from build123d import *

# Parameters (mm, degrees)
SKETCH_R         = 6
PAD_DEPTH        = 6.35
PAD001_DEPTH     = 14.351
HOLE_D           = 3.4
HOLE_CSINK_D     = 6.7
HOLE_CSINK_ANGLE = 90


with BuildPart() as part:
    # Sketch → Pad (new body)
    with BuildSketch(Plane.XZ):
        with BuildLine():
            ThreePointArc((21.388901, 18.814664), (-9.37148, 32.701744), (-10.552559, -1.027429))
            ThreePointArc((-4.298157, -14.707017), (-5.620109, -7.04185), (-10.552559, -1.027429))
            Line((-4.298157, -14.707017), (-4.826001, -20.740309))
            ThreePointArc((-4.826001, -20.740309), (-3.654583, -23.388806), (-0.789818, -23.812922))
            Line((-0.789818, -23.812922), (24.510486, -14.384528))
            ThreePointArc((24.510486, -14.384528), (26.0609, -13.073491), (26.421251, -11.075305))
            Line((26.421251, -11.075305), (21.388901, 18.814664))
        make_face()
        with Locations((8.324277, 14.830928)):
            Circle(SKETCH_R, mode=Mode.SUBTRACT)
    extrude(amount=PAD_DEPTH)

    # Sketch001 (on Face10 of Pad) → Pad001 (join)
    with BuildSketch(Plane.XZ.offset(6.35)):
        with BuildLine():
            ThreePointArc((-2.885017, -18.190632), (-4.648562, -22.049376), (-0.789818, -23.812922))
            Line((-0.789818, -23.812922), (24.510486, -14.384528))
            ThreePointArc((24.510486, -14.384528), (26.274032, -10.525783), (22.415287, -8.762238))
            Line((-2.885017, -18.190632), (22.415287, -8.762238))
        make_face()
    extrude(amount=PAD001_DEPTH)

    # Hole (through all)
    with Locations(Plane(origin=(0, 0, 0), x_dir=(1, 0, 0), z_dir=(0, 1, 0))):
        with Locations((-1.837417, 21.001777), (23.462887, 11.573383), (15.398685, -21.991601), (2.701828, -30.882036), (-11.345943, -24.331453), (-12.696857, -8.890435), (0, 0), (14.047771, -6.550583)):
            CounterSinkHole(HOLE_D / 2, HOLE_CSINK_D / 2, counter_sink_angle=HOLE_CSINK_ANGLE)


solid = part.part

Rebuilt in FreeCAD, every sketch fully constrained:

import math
import FreeCAD as App
import Part
import Sketcher
from FreeCAD import Vector
Q = App.Units.Quantity

doc = App.newDocument("Part")
params = doc.addObject("Spreadsheet::Sheet", "Params")
for row, (alias, value) in enumerate([
    ("sketch1_diameter", "12 mm"),
    ("sketch1_radius", "3 mm"),
    ("sketch1_radius2", "20.32 mm"),
    ("sketch1_radius3", "15.239999 mm"),
    ("sketch1_length", "27 mm"),
    ("pad1_length", "6.35 mm"),
    ("sketch2_radius", "3 mm"),
    ("sketch2_length", "27 mm"),
    ("pad2_length", "14.351 mm"),
    ("sketch3_diameter", "3.4 mm"),
    ("hole_diameter", "3.4 mm"),
    ("hole_csink_diameter", "6.7 mm"),
], start=1):
    params.set(f"A{row}", alias)
    params.set(f"B{row}", "=" + value)
    params.setAlias(f"B{row}", alias)

body = doc.addObject("PartDesign::Body", "Body")

# Sketch on XZ plane
sketch1 = body.newObject("Sketcher::SketchObject", "Sketch")
sketch1.AttachmentSupport = (doc.getObject("XZ_Plane"), [""])
sketch1.MapMode = "FlatFace"
sketch1.addGeometry([
    Part.ArcOfCircle(Part.Circle(Vector(1.350914, 15.441018, 0), Vector(0, 0, 1), 20.32), math.radians(9.556836), math.radians(234.140414)),  # 0
    Part.ArcOfCircle(Part.Circle(Vector(-19.480163, -13.378763, 0), Vector(0, 0, 1), 15.239999), math.radians(-5.000001), math.radians(54.140414)),  # 1
    Part.LineSegment(Vector(-4.298157, -14.707017, 0), Vector(-4.826001, -20.740309, 0)),  # 2
    Part.ArcOfCircle(Part.Circle(Vector(-1.837417, -21.001777, 0), Vector(0, 0, 1), 3), math.radians(174.999986), math.radians(290.43837)),  # 3
    Part.LineSegment(Vector(-0.789818, -23.812922, 0), Vector(24.510486, -14.384528, 0)),  # 4
    Part.ArcOfCircle(Part.Circle(Vector(23.462884, -11.573382, 0), Vector(0, 0, 1), 3.000002), math.radians(-69.561592), math.radians(9.556808)),  # 5
    Part.LineSegment(Vector(26.421251, -11.075305, 0), Vector(21.388901, 18.814664, 0)),  # 6
    Part.Circle(Vector(8.324277, 14.830928, 0), Vector(0, 0, 1), 6),  # 7
], False)
sketch1.addConstraint([
    Sketcher.Constraint("Tangent", 0, 2, 1, 2),
    Sketcher.Constraint("Tangent", 1, 1, 2, 1),
    Sketcher.Constraint("Tangent", 2, 2, 3, 1),
    Sketcher.Constraint("Tangent", 3, 2, 4, 1),
    Sketcher.Constraint("Tangent", 4, 2, 5, 1),
    Sketcher.Constraint("Tangent", 5, 2, 6, 1),
    Sketcher.Constraint("Tangent", 6, 2, 0, 1),
    Sketcher.Constraint("Diameter", 7, 12.0),
    Sketcher.Constraint("Radius", 3, 3.0),
    Sketcher.Constraint("Angle", 2, Q("-94.999994 deg")),
    Sketcher.Constraint("Radius", 0, 20.32),
    Sketcher.Constraint("Radius", 1, 15.239999),
    Sketcher.Constraint("Distance", 4, 27.0),
    Sketcher.Constraint("DistanceX", 2, 2, -1, 1, 4.826001),
    Sketcher.Constraint("Radius", 5, 3.000002),
    Sketcher.Constraint("DistanceX", -1, 1, 6, 2, 21.388901),
    Sketcher.Constraint("DistanceX", 3, 3, 5, 3, 25.300301),
    Sketcher.Constraint("DistanceY", 5, 3, 0, 3, 27.014399),
    Sketcher.Constraint("DistanceY", 5, 3, -1, 1, 11.573382),
    Sketcher.Constraint("DistanceY", 7, 3, 0, 3, 0.61009),
    Sketcher.Constraint("DistanceX", 1, 3, 7, 3, 27.80444),
])
sketch1.setExpression("Constraints[7]", "Params.sketch1_diameter")
sketch1.setExpression("Constraints[8]", "Params.sketch1_radius")
sketch1.setExpression("Constraints[10]", "Params.sketch1_radius2")
sketch1.setExpression("Constraints[11]", "Params.sketch1_radius3")
sketch1.setExpression("Constraints[12]", "Params.sketch1_length")
pad1 = body.newObject("PartDesign::Pad", "Pad")
pad1.Profile = sketch1
pad1.setExpression("Length", "Params.pad1_length")

# Sketch on XZ plane
sketch2 = body.newObject("Sketcher::SketchObject", "Sketch001")
sketch2.AttachmentSupport = (doc.getObject("XZ_Plane"), [""])
sketch2.MapMode = "FlatFace"
sketch2.AttachmentOffset = App.Placement(Vector(0, 0, 6.35), App.Rotation())
sketch2.addGeometry([
    Part.ArcOfCircle(Part.Circle(Vector(-1.837417, -21.001777, 0), Vector(0, 0, 1), 3), math.radians(110.438392), math.radians(290.438368)),
    Part.LineSegment(Vector(-0.789818, -23.812922, 0), Vector(24.510486, -14.384528, 0)),
    Part.ArcOfCircle(Part.Circle(Vector(23.462887, -11.573383, 0), Vector(0, 0, 1), 3), math.radians(-69.561632), math.radians(110.438392)),
    Part.LineSegment(Vector(22.415287, -8.762238, 0), Vector(-2.885017, -18.190632, 0)),
], False)
sketch2.addConstraint([
    Sketcher.Constraint("Tangent", 0, 2, 1, 1),
    Sketcher.Constraint("Tangent", 1, 2, 2, 1),
    Sketcher.Constraint("Tangent", 2, 2, 3, 1),
    Sketcher.Constraint("Tangent", 3, 2, 0, 1),
    Sketcher.Constraint("Equal", 0, 2),
    Sketcher.Constraint("Radius", 0, 3.0),
    Sketcher.Constraint("Distance", 1, 27.0),
    Sketcher.Constraint("DistanceX", 0, 3, 0, 2, 1.047599),
    Sketcher.Constraint("DistanceX", 0, 2, -1, 1, 0.789818),
    Sketcher.Constraint("DistanceY", 0, 2, -1, 1, 23.812922),
])
sketch2.setExpression("Constraints[5]", "Params.sketch2_radius")
sketch2.setExpression("Constraints[6]", "Params.sketch2_length")
pad2 = body.newObject("PartDesign::Pad", "Pad001")
pad2.Profile = sketch2
pad2.setExpression("Length", "Params.pad2_length")

# Sketch on XZ plane
sketch3 = body.newObject("Sketcher::SketchObject", "Sketch002")
sketch3.AttachmentSupport = (doc.getObject("XZ_Plane"), [""])
sketch3.MapMode = "FlatFace"
sketch3.addGeometry([
    Part.Circle(Vector(-1.837417, -21.001777, 0), Vector(0, 0, 1), 1.7),  # 0
    Part.Circle(Vector(23.462887, -11.573383, 0), Vector(0, 0, 1), 1.7),  # 1
    Part.Circle(Vector(15.398685, 21.991601, 0), Vector(0, 0, 1), 1.7),  # 2
    Part.Circle(Vector(2.701828, 30.882036, 0), Vector(0, 0, 1), 1.7),  # 3
    Part.Circle(Vector(-11.345943, 24.331453, 0), Vector(0, 0, 1), 1.7),  # 4
    Part.Circle(Vector(-12.696857, 8.890435, 0), Vector(0, 0, 1), 1.7),  # 5
    Part.Circle(Vector(0, 0, 0), Vector(0, 0, 1), 1.7),  # 6
    Part.Circle(Vector(14.047771, 6.550583, 0), Vector(0, 0, 1), 1.7),  # 7
], False)
sketch3.addConstraint([
    Sketcher.Constraint("Coincident", 6, 3, -1, 1),
    Sketcher.Constraint("Equal", 0, 1),
    Sketcher.Constraint("Equal", 1, 2),
    Sketcher.Constraint("Equal", 2, 3),
    Sketcher.Constraint("Equal", 3, 4),
    Sketcher.Constraint("Equal", 4, 5),
    Sketcher.Constraint("Equal", 5, 6),
    Sketcher.Constraint("Equal", 6, 7),
    Sketcher.Constraint("Diameter", 0, 3.4),
    Sketcher.Constraint("DistanceY", -1, 1, 2, 3, 21.991601),
    Sketcher.Constraint("DistanceX", 2, 3, 1, 3, 8.064202),
    Sketcher.Constraint("DistanceX", 0, 3, 2, 3, 17.236102),
    Sketcher.Constraint("DistanceY", 5, 3, 3, 3, 21.991601),
    Sketcher.Constraint("DistanceX", -1, 1, 7, 3, 14.047771),
    Sketcher.Constraint("DistanceX", 3, 3, 1, 3, 20.761059),
    Sketcher.Constraint("DistanceY", 1, 3, 3, 3, 42.455419),
    Sketcher.Constraint("DistanceX", 4, 3, 3, 3, 14.047771),
    Sketcher.Constraint("DistanceY", 0, 3, 4, 3, 45.33323),
    Sketcher.Constraint("DistanceX", 5, 3, 0, 3, 10.85944),
    Sketcher.Constraint("DistanceX", 0, 3, -1, 1, 1.837417),
    Sketcher.Constraint("DistanceY", 0, 3, -1, 1, 21.001777),
    Sketcher.Constraint("DistanceY", 1, 3, -1, 1, 11.573383),
    Sketcher.Constraint("DistanceY", -1, 1, 7, 3, 6.550583),
])
sketch3.setExpression("Constraints[8]", "Params.sketch3_diameter")
doc.recompute()
hole = body.newObject("PartDesign::Hole", "Hole")
hole.Profile = sketch3
hole.ThreadType = "None"
hole.setExpression("Diameter", "Params.hole_diameter")
hole.DepthType = "ThroughAll"
hole.HoleCutType = "Countersink"
hole.setExpression("HoleCutDiameter", "Params.hole_csink_diameter")
hole.HoleCutCountersinkAngle = 90
hole.Reversed = True

doc.recompute()
